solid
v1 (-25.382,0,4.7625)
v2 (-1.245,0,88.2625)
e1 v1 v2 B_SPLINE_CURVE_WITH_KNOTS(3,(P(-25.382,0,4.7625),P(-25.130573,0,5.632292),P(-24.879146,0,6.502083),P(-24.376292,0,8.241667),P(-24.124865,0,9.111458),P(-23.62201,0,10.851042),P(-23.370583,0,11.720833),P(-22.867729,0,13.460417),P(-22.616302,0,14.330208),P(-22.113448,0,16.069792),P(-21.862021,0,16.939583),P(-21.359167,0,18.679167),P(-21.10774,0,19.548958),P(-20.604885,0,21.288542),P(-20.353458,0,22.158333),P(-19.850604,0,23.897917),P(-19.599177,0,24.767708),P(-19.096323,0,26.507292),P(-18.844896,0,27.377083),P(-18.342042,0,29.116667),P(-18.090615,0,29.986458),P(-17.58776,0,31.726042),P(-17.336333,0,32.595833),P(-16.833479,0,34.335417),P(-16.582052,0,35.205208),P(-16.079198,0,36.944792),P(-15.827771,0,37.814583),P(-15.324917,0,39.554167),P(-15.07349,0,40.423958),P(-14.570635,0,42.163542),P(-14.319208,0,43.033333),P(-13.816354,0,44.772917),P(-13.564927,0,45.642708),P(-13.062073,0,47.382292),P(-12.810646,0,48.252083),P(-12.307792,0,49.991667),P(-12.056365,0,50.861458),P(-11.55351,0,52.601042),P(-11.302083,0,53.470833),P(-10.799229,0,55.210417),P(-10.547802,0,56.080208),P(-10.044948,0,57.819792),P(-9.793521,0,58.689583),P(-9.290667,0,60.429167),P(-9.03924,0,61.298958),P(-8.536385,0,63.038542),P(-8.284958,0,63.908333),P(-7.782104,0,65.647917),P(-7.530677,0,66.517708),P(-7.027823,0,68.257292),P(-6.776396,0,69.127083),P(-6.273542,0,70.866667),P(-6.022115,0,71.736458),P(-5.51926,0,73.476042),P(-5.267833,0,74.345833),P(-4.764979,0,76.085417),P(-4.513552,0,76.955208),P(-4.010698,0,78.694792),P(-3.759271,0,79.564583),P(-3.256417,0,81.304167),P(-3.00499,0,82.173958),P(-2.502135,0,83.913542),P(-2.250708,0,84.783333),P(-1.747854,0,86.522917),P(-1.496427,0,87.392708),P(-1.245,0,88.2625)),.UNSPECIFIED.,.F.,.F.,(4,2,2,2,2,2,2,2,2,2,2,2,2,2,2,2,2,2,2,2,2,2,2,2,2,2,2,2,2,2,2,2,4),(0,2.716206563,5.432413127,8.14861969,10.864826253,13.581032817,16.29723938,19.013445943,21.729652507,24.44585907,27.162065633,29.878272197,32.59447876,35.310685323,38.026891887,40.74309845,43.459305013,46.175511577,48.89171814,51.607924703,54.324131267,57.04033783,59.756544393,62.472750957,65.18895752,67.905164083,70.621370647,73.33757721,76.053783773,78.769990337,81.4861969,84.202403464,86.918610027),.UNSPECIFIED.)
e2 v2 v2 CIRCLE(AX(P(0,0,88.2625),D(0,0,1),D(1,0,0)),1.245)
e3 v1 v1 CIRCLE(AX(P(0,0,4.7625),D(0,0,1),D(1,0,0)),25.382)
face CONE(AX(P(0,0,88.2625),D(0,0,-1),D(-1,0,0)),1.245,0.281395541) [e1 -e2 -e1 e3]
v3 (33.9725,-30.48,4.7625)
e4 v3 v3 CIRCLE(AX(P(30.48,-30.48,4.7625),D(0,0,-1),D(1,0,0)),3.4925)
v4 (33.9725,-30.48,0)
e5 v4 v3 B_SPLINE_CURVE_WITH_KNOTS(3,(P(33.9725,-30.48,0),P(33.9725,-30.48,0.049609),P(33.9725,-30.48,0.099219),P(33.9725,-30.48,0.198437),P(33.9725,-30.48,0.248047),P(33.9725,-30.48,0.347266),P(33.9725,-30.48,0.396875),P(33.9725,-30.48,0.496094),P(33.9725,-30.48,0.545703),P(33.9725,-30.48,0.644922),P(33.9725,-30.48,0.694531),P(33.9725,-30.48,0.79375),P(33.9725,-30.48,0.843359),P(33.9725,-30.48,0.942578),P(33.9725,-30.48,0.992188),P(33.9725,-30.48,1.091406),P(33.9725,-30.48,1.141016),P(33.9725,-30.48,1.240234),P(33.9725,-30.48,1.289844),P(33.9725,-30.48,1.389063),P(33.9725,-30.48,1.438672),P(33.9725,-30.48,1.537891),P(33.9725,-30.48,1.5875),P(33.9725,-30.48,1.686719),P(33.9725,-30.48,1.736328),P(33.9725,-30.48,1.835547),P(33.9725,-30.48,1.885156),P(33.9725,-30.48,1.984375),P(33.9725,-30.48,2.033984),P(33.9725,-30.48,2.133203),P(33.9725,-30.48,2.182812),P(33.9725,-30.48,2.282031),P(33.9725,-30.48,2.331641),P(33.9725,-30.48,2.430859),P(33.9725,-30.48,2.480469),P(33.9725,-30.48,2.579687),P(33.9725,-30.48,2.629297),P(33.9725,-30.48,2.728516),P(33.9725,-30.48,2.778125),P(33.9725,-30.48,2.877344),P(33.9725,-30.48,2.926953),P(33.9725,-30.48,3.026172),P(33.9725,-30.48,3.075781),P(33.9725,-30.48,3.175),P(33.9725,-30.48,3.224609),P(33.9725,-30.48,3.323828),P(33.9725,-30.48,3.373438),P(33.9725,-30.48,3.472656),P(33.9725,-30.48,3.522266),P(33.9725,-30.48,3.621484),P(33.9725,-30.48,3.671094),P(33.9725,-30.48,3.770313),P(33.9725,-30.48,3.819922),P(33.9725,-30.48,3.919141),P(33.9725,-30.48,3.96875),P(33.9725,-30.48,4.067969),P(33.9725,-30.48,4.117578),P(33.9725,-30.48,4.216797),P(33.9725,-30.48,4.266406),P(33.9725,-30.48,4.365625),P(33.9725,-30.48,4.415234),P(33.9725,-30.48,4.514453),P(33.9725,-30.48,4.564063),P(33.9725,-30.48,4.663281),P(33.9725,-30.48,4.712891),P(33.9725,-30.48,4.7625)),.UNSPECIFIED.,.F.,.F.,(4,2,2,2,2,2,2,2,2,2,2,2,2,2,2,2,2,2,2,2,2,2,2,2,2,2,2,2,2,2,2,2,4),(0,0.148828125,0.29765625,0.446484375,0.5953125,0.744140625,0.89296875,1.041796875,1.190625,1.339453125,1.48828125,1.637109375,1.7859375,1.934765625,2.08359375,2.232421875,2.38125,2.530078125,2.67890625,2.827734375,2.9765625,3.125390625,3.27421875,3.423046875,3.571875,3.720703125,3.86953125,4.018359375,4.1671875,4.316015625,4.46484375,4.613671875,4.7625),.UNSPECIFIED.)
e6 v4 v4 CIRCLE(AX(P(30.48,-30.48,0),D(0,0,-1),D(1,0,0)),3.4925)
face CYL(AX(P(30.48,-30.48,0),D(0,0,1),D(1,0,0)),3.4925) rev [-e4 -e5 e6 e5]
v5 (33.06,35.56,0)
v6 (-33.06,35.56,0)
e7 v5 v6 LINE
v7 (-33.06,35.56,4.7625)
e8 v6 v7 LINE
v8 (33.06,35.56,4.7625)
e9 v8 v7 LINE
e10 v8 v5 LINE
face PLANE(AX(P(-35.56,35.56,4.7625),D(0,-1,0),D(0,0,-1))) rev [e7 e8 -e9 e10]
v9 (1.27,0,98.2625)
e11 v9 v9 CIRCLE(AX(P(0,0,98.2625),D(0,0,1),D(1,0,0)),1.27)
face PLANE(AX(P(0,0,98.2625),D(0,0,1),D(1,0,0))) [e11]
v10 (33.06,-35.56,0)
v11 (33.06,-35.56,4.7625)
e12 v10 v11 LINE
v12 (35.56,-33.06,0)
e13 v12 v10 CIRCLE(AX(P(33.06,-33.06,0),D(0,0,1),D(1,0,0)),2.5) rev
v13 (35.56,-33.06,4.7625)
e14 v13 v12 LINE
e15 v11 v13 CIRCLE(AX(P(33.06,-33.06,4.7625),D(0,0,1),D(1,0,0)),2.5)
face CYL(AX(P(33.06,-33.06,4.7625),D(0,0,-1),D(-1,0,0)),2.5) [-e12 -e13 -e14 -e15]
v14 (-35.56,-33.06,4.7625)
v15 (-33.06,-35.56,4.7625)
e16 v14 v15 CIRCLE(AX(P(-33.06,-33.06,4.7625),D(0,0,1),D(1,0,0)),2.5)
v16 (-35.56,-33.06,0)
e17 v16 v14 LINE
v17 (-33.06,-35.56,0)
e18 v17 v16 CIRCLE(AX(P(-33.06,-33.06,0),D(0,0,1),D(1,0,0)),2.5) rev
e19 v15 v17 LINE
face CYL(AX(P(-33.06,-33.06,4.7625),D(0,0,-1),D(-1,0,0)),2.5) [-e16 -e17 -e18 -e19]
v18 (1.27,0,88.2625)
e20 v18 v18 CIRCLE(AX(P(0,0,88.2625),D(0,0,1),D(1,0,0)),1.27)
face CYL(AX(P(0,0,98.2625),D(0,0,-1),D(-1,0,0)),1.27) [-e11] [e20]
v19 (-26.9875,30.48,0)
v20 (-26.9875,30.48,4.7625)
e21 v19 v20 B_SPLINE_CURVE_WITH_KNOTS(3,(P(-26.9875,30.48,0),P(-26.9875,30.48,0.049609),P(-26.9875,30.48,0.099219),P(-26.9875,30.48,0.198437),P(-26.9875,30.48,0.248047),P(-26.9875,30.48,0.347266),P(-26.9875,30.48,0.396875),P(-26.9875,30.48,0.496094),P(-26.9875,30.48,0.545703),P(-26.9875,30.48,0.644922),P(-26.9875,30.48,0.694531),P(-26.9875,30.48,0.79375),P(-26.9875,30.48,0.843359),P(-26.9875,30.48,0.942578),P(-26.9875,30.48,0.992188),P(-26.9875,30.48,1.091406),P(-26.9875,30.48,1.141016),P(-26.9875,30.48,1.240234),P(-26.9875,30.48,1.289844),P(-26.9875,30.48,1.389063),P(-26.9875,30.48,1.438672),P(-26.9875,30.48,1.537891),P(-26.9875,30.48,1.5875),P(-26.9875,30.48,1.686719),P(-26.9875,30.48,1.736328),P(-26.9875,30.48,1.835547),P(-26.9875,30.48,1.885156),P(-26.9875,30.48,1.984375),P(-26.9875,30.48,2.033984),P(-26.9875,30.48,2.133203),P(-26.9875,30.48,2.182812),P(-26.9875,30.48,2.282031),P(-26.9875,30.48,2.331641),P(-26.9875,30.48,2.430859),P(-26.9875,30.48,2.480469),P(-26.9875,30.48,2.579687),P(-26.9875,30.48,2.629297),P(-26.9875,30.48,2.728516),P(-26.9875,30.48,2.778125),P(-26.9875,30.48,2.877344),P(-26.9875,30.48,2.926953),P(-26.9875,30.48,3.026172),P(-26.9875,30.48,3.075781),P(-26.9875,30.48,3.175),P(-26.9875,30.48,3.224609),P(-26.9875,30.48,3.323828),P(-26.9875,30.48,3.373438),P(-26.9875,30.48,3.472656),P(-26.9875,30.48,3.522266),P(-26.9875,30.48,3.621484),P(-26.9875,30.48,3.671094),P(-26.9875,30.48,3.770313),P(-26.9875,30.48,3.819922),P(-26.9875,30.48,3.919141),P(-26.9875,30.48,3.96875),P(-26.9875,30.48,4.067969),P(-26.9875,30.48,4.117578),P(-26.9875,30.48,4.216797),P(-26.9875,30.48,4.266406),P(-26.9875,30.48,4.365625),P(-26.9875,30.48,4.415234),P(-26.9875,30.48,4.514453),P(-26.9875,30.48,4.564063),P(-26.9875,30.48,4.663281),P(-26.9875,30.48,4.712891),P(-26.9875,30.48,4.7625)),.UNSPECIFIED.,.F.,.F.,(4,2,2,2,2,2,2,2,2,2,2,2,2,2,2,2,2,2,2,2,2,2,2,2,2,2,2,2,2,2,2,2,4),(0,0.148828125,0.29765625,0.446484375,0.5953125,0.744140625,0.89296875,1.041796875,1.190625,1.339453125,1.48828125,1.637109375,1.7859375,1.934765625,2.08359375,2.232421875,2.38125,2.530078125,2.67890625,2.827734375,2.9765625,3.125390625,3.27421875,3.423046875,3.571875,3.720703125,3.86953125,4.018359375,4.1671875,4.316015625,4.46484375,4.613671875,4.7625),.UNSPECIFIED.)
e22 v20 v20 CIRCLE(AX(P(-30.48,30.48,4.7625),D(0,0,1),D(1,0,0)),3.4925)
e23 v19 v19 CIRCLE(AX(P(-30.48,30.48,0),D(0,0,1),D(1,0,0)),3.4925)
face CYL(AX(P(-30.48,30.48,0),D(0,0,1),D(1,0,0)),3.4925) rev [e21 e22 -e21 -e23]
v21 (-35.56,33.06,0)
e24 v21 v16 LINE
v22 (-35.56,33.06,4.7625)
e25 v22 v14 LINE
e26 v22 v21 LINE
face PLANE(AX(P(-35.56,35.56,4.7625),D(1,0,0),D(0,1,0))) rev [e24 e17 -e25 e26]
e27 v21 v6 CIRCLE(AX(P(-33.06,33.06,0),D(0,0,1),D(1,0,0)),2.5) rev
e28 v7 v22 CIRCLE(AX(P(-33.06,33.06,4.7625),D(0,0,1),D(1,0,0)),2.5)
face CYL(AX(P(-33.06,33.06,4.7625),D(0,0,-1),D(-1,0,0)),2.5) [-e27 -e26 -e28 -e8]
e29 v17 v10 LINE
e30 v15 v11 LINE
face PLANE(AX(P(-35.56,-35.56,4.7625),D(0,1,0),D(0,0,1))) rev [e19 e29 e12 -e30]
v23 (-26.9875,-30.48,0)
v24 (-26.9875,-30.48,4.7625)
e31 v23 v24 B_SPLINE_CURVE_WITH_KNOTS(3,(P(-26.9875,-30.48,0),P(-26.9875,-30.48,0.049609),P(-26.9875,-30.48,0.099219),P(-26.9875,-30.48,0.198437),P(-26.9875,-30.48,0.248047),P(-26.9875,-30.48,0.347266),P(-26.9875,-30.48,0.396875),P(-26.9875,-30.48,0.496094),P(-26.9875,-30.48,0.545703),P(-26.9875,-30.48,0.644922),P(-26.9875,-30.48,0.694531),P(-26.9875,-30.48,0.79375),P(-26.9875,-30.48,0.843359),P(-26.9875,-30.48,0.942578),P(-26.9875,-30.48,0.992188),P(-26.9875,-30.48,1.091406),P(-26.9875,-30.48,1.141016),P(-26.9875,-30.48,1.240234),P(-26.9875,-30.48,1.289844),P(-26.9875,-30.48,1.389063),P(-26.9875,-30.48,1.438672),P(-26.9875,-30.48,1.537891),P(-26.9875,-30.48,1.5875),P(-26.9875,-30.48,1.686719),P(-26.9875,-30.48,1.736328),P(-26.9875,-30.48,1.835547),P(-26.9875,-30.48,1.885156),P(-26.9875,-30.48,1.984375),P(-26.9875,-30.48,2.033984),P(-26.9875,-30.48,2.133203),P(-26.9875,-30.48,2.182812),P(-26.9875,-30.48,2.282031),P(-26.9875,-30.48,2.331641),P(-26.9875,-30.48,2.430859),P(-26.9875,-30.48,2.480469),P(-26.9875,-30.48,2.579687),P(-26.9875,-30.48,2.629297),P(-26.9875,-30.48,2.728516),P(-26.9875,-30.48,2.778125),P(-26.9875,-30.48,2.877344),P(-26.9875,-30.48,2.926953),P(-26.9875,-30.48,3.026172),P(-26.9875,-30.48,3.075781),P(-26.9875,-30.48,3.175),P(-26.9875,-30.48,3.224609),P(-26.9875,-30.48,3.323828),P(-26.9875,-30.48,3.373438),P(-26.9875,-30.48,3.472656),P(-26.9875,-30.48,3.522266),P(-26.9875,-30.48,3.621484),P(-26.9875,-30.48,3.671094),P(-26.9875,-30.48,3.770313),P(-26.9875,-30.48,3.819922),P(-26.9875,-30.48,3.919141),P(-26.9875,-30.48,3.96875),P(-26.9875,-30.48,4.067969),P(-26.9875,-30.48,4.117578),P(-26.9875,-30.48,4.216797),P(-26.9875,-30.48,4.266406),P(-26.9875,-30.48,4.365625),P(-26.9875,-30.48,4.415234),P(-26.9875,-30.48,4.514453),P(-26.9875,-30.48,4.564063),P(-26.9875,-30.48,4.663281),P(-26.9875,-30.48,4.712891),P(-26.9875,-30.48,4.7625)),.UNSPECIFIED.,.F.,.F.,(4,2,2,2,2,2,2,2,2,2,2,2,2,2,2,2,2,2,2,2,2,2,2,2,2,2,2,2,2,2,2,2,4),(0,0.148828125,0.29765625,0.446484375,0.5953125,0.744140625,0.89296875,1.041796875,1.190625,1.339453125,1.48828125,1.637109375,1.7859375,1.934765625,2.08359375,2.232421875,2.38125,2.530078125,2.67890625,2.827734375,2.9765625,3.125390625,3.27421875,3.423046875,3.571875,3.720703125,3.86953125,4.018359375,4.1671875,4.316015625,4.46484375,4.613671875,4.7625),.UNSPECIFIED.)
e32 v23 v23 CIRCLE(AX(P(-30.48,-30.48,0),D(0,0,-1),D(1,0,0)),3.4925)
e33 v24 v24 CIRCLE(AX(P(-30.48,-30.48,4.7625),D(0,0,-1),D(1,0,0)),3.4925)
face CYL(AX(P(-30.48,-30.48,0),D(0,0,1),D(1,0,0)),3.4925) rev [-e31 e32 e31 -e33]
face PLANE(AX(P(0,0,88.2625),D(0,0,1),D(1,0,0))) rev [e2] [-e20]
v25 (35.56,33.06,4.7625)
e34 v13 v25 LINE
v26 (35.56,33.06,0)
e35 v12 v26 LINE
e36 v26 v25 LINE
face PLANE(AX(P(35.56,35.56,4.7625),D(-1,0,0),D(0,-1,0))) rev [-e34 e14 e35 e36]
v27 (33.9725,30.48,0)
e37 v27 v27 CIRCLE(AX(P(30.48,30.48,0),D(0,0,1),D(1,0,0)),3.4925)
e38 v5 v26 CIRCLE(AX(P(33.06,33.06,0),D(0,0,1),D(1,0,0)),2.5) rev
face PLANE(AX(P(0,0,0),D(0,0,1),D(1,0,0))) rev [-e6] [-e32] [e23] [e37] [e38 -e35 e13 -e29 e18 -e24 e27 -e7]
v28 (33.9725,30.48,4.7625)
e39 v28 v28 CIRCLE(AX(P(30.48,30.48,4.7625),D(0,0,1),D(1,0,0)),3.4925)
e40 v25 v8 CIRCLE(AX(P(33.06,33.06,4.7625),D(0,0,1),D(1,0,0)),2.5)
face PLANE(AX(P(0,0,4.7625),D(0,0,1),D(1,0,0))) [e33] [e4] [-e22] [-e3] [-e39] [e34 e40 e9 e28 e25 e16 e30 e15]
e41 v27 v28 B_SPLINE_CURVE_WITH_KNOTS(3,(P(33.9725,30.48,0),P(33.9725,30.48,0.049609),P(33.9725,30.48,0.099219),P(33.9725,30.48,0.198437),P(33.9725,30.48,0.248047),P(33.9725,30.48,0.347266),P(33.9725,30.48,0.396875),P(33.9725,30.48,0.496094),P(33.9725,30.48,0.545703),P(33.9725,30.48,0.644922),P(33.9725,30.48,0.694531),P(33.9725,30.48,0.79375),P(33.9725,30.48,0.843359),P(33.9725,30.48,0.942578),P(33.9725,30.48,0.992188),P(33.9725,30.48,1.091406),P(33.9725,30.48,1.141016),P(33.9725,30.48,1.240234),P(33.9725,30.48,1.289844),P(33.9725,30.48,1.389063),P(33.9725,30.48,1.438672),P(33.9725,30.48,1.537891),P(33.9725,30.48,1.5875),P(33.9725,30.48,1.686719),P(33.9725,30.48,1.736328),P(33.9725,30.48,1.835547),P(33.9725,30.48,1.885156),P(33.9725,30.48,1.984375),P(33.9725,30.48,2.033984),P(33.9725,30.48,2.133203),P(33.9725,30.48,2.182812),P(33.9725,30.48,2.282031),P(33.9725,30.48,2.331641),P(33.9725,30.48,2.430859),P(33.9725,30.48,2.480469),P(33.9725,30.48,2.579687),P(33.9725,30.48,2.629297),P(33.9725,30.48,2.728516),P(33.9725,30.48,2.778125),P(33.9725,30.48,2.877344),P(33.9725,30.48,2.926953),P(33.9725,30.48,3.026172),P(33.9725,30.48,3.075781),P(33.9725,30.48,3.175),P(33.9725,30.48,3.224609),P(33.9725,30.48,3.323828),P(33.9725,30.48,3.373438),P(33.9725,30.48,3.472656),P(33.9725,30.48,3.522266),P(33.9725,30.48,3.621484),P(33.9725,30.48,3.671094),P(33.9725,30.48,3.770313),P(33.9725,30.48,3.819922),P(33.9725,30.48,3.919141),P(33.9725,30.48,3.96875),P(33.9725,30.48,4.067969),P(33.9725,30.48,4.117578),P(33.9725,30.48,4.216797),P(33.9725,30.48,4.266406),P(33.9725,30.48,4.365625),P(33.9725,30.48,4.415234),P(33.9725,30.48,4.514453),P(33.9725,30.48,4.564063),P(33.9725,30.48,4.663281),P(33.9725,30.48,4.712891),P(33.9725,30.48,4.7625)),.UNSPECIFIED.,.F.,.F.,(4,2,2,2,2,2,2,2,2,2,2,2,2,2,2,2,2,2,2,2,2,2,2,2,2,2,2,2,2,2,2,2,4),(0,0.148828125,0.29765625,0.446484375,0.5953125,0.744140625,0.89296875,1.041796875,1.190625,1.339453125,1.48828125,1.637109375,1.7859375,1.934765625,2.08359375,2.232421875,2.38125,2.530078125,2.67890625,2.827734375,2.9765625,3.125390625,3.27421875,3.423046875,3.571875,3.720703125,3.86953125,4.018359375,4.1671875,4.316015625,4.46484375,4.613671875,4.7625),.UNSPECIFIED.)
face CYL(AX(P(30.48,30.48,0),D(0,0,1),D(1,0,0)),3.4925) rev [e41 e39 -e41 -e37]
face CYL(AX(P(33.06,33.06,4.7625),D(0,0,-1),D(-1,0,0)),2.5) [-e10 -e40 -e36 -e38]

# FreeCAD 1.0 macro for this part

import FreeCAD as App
import Part
import Sketcher

V = App.Vector
Q = App.Units.Quantity


def edges_at(feature, points):
    """Names of the edges that pass closest to the given points."""
    edges = feature.Shape.Edges
    near = lambda p: min(range(len(edges)), key=lambda i: edges[i].distToShape(Part.Vertex(*p))[0])
    return sorted({f"Edge{near(p) + 1}" for p in points})


def add_polygon(sketch, points):
    """Adds a closed chain of lines whose ends are joined by coincident constraints."""
    first, n = sketch.GeometryCount, len(points)
    for a, b in zip(points, points[1:] + points[:1]):
        sketch.addGeometry(Part.LineSegment(App.Vector(*a, 0), App.Vector(*b, 0)), False)
    for i in range(n):
        sketch.addConstraint(Sketcher.Constraint("Coincident", first + i, 2, first + (i + 1) % n, 1))

doc = App.newDocument("Part")
params = doc.addObject("Spreadsheet::Sheet", "Params")
for row, (alias, value) in enumerate([
    ("sketch1_width", "2.8 in"),
    ("pad1_length", "0.1875 in"),
    ("sketch2_diameter", "0.275 in"),
    ("pad2_length", "83.5 mm"),
    ("groove_angle", "360 deg"),
    ("sketch5_diameter", "0.1 in"),
    ("pad3_length", "10 mm"),
    ("fillet_radius", "2.5 mm"),
], start=1):
    params.set(f"A{row}", alias)
    params.set(f"B{row}", "=" + value)
    params.setAlias(f"B{row}", alias)

body = doc.addObject("PartDesign::Body", "Body")

sketch1 = doc.addObject("Sketcher::SketchObject", "Sketch")
body.addObject(sketch1)
sketch1.AttachmentSupport = (doc.XY_Plane, [""])
sketch1.MapMode = "FlatFace"
add_polygon(sketch1, [(-35.56, 35.56), (-35.56, -35.56), (35.56, -35.56), (35.56, 35.56)])
sketch1.addConstraint([
    Sketcher.Constraint("Vertical", 0),
    Sketcher.Constraint("Horizontal", 1),
    Sketcher.Constraint("Vertical", 2),
    Sketcher.Constraint("Horizontal", 3),
    Sketcher.Constraint("Symmetric", 0, 2, 2, 2, -1, 1),
    Sketcher.Constraint("Equal", 3, 0),
    Sketcher.Constraint("DistanceX", 1, 1, 1, 2, Q("2.8 in")),
])
sketch1.setExpression("Constraints[10]", "Params.sketch1_width")
pad1 = doc.addObject("PartDesign::Pad", "Pad")
body.addObject(pad1)
pad1.Profile = sketch1
pad1.setExpression("Length", "Params.pad1_length")

sketch2 = doc.addObject("Sketcher::SketchObject", "Sketch001")
body.addObject(sketch2)
sketch2.AttachmentSupport = (doc.XY_Plane, [""])
sketch2.MapMode = "FlatFace"
sketch2.AttachmentOffset = App.Placement(V(0, 0, 0.1875 * 25.4), App.Rotation())
sketch2.addGeometry([
    Part.Circle(V(-30.48, 30.48, 0), V(0, 0, 1), 3.4925),
    Part.Circle(V(30.48, 30.48, 0), V(0, 0, 1), 3.4925),
], False)
sketch2.addConstraint([
    Sketcher.Constraint("Equal", 0, 1),
    Sketcher.Constraint("Symmetric", 0, 3, 1, 3, -2),
    Sketcher.Constraint("Diameter", 0, Q("0.275 in")),
    Sketcher.Constraint("DistanceX", 0, 3, -1, 1, Q("1.2 in")),
    Sketcher.Constraint("DistanceY", -1, 1, 0, 3, Q("1.2 in")),
])
sketch2.setExpression("Constraints[2]", "Params.sketch2_diameter")
pocket1 = doc.addObject("PartDesign::Pocket", "Pocket")
body.addObject(pocket1)
pocket1.Profile = sketch2
pocket1.Type = "ThroughAll"
doc.recompute()

mirrored = doc.addObject("PartDesign::Mirrored", "Mirrored")
body.addObject(mirrored)
mirrored.Originals = [pocket1]
mirrored.MirrorPlane = (doc.XZ_Plane, [""])
body.Tip = mirrored

sketch3 = doc.addObject("Sketcher::SketchObject", "Sketch002")
body.addObject(sketch3)
sketch3.AttachmentSupport = (doc.XY_Plane, [""])
sketch3.MapMode = "FlatFace"
sketch3.AttachmentOffset = App.Placement(V(0, 0, 0.1875 * 25.4), App.Rotation())
sketch3.addGeometry(Part.Circle(V(0, 0, 0), V(0, 0, 1), 25.382), False)
sketch3.addConstraint([
    Sketcher.Constraint("Coincident", 0, 3, -1, 1),
    Sketcher.Constraint("Diameter", 0, Q("50.764 mm")),
])
pad2 = doc.addObject("PartDesign::Pad", "Pad001")
body.addObject(pad2)
pad2.Profile = sketch3
pad2.setExpression("Length", "Params.pad2_length")

sketch4 = doc.addObject("Sketcher::SketchObject", "Sketch003")
body.addObject(sketch4)
sketch4.AttachmentSupport = (doc.YZ_Plane, [""])
sketch4.MapMode = "FlatFace"
add_polygon(sketch4, [(1.245, 88.2625), (25.382, 4.7625), (25.382, 88.2625)])
sketch4.addConstraint([
    Sketcher.Constraint("Vertical", 1),
    Sketcher.Constraint("Horizontal", 2),
    Sketcher.Constraint("DistanceY", -1, 1, 0, 2, Q("0.1875 in")),
    Sketcher.Constraint("DistanceX", 2, 2, 2, 1, Q("24.137 mm")),
    Sketcher.Constraint("DistanceY", 1, 1, 1, 2, Q("83.5 mm")),
    Sketcher.Constraint("DistanceX", -1, 1, 0, 2, Q("25.382 mm")),
])
groove = doc.addObject("PartDesign::Groove", "Groove")
body.addObject(groove)
groove.Profile = sketch4
groove.ReferenceAxis = (sketch4, ["V_Axis"])
groove.setExpression("Angle", "Params.groove_angle")

sketch5 = doc.addObject("Sketcher::SketchObject", "Sketch004")
body.addObject(sketch5)
sketch5.AttachmentSupport = (doc.XY_Plane, [""])
sketch5.MapMode = "FlatFace"
sketch5.AttachmentOffset = App.Placement(V(0, 0, 88.2625), App.Rotation())
sketch5.addGeometry(Part.Circle(V(0, 0, 0), V(0, 0, 1), 1.27), False)
sketch5.addConstraint([
    Sketcher.Constraint("Coincident", 0, 3, -1, 1),
    Sketcher.Constraint("Diameter", 0, Q("0.1 in")),
])
sketch5.setExpression("Constraints[1]", "Params.sketch5_diameter")
pad3 = doc.addObject("PartDesign::Pad", "Pad002")
body.addObject(pad3)
pad3.Profile = sketch5
pad3.setExpression("Length", "Params.pad3_length")
doc.recompute()

fillet = doc.addObject("PartDesign::Fillet", "Fillet")
body.addObject(fillet)
fillet.Base = (pad3, edges_at(pad3, [
    (-35.56, 35.56, 2.381),
    (35.56, 35.56, 2.381),
    (35.56, -35.56, 2.381),
    (-35.56, -35.56, 2.381),
]))
fillet.setExpression("Radius", "Params.fillet_radius")

doc.recompute()
